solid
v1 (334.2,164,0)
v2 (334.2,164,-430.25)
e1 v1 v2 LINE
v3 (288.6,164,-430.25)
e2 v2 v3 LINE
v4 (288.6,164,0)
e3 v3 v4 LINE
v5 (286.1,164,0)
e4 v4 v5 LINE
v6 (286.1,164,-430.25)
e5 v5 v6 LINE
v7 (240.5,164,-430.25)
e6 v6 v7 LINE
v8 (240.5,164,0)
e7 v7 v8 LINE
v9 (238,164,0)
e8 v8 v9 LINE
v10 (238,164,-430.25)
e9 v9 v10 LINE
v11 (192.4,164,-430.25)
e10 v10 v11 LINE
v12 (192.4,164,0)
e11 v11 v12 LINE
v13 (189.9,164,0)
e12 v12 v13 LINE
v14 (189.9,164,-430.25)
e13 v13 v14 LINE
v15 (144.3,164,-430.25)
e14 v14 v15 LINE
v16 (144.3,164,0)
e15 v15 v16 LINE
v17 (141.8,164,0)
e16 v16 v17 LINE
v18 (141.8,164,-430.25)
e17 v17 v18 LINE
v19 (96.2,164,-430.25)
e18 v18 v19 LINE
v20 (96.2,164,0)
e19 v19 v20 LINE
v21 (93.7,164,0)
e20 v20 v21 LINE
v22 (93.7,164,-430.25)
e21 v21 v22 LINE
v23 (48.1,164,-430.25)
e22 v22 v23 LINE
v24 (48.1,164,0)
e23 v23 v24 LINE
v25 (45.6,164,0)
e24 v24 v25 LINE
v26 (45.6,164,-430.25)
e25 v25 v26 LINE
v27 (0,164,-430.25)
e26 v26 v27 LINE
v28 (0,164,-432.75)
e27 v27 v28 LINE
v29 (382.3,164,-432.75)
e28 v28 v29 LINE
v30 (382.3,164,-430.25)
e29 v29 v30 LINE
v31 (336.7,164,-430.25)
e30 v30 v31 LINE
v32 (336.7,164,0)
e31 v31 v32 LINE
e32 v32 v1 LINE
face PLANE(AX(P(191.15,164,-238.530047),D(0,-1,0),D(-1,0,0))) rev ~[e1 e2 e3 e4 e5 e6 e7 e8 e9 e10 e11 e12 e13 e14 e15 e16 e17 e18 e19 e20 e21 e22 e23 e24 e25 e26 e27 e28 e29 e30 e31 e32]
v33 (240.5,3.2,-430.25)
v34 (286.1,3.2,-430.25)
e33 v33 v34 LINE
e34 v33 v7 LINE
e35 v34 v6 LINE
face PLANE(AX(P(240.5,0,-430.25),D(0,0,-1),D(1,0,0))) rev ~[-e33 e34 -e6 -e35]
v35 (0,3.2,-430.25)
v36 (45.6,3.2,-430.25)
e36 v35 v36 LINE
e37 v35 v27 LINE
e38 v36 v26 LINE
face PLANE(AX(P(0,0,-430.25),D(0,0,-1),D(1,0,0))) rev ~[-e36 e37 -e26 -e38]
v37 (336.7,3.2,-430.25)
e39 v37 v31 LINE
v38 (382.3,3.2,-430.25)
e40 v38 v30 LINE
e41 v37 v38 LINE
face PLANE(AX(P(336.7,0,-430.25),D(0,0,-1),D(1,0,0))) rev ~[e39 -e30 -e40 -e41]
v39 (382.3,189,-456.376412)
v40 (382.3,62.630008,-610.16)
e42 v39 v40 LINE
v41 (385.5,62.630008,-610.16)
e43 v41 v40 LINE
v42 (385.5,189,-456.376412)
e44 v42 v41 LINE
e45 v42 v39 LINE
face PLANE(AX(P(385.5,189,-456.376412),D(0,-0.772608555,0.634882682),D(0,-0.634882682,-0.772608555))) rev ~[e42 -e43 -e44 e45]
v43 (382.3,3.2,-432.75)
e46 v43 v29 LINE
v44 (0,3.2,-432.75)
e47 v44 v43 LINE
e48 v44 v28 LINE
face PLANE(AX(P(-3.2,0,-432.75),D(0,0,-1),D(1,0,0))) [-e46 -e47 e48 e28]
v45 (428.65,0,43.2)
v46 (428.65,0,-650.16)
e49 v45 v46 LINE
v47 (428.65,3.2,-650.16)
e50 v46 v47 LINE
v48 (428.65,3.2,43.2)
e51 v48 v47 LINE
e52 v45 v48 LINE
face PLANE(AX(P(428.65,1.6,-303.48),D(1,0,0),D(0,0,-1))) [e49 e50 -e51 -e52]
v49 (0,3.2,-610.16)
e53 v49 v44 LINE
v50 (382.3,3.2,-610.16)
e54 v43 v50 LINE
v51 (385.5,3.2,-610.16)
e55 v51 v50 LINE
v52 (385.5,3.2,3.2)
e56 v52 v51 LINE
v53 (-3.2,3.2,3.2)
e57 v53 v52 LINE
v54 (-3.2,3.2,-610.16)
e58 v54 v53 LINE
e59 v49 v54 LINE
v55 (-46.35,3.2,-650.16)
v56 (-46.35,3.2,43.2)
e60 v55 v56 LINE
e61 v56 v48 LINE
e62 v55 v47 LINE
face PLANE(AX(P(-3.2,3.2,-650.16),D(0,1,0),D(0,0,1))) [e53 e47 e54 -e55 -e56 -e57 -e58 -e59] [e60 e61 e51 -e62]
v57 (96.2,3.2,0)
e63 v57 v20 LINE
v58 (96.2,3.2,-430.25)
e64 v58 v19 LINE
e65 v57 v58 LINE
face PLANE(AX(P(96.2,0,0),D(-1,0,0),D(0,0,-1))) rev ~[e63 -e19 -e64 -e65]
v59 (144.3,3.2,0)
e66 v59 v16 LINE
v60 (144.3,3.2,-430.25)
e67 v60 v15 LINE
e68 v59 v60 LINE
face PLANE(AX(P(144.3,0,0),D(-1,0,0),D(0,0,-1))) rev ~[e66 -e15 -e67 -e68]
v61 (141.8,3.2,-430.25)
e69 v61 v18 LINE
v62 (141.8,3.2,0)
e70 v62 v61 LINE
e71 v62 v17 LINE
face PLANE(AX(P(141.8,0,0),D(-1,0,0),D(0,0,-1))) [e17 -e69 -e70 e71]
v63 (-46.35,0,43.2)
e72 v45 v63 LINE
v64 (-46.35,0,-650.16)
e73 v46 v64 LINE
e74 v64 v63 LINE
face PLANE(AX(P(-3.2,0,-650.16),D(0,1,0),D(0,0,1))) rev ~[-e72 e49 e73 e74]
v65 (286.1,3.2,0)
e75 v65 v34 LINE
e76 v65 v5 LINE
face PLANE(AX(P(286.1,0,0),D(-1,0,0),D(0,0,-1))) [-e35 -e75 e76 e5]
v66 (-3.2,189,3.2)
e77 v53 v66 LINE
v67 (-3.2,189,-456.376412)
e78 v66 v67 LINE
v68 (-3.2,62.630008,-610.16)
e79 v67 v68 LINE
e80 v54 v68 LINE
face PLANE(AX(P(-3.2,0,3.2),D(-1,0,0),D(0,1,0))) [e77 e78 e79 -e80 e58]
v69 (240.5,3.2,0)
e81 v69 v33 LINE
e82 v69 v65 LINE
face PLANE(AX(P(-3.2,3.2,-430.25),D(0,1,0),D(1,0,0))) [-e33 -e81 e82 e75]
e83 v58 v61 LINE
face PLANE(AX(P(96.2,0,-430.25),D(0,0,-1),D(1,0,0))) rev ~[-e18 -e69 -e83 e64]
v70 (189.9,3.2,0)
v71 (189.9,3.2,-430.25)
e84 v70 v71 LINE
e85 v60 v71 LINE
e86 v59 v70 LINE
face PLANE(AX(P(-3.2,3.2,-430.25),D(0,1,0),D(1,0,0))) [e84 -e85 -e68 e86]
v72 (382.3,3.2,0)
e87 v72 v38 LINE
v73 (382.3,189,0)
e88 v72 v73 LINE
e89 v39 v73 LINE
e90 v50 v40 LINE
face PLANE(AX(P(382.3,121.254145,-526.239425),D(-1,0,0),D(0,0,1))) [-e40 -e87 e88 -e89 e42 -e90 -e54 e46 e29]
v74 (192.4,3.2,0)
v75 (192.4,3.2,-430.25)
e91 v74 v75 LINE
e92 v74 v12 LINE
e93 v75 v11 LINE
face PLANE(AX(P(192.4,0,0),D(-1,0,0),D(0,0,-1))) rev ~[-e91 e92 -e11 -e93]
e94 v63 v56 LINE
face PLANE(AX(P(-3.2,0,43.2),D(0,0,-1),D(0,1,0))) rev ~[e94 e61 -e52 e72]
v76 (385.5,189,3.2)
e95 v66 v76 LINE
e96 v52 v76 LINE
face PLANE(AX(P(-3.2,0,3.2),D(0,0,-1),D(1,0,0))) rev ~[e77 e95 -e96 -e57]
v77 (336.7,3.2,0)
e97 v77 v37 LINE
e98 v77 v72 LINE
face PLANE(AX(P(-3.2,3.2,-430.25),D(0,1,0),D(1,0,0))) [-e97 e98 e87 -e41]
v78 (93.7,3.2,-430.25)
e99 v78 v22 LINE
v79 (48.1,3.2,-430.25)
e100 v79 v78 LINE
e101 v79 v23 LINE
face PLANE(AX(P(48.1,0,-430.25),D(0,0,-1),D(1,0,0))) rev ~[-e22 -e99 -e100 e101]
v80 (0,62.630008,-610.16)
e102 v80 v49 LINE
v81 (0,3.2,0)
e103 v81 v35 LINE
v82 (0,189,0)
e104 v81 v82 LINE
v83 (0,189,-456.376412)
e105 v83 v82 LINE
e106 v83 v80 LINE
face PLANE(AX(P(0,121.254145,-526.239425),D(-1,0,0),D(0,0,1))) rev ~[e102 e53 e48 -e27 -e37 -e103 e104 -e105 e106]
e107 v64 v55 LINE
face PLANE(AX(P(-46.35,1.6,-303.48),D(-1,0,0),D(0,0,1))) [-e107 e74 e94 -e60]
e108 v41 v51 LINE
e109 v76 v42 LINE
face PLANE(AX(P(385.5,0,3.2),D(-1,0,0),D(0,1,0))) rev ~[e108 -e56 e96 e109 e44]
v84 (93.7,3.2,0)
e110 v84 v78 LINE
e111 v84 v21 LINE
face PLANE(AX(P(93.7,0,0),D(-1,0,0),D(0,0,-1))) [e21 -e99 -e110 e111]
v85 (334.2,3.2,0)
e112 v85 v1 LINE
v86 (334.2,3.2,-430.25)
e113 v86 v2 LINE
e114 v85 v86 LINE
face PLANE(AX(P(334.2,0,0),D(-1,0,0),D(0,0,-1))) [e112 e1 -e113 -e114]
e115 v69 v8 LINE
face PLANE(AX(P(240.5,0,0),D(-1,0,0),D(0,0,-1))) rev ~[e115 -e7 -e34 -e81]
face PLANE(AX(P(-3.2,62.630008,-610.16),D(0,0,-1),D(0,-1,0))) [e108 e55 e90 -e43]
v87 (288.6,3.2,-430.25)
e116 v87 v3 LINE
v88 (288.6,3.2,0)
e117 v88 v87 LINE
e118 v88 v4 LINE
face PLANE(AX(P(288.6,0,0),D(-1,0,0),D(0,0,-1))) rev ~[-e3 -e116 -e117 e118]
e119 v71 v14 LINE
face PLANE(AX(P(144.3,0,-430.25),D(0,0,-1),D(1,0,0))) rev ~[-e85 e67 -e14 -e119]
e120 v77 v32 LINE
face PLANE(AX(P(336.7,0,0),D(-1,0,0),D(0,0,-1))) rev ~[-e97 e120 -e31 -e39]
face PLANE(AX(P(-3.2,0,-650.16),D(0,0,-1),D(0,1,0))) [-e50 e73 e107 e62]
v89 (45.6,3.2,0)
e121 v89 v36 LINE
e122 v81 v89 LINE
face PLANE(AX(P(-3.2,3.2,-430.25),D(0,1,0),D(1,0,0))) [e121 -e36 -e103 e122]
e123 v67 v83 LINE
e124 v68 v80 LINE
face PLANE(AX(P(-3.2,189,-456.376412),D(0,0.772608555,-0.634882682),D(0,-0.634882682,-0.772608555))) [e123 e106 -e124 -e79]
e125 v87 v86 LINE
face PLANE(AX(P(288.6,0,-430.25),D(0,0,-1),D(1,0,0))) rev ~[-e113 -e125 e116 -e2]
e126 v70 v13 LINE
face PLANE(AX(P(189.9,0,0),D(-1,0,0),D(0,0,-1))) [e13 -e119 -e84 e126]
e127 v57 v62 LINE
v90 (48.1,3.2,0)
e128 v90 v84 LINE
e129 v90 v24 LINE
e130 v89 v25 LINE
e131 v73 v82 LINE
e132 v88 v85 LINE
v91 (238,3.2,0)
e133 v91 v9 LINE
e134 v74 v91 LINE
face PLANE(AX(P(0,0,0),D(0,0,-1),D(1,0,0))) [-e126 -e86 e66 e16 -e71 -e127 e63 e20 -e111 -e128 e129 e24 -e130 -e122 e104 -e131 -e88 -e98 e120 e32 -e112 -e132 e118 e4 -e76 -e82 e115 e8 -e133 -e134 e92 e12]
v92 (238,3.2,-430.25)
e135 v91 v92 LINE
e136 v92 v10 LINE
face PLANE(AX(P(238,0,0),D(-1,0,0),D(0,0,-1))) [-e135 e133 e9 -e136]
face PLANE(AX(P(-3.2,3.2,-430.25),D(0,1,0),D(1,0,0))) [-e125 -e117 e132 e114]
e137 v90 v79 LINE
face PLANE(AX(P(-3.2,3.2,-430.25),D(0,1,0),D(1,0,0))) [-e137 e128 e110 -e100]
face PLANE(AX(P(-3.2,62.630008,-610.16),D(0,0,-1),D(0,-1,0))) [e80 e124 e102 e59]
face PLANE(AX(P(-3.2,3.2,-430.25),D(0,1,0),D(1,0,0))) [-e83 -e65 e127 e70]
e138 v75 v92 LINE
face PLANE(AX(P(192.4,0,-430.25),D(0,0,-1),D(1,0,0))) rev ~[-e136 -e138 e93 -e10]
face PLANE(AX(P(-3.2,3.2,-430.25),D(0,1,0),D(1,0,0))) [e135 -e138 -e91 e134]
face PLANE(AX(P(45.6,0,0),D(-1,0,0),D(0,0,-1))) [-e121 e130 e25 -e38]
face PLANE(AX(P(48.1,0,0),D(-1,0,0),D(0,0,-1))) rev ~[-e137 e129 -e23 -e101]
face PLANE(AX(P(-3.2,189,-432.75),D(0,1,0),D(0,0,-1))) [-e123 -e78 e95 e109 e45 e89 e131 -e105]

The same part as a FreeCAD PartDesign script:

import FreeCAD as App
import Part
import Sketcher
from FreeCAD import Vector

doc = App.newDocument("Part")
params = doc.addObject("Spreadsheet::Sheet", "Params")
for row, (alias, value) in enumerate([
    ("sketch1_width", "388.7 mm"),
    ("sketch1_width2", "45.6 mm"),
    ("sketch1_height", "435.95 mm"),
    ("sketch1_height2", "430.25 mm"),
    ("pad1_length", "189 mm"),
    ("sketch2_width", "388.7 mm"),
    ("sketch2_height", "3.2 mm"),
    ("pad2_length", "430.25 mm"),
    ("sketch3_width", "45.6 mm"),
    ("sketch3_width2", "2.5 mm"),
    ("sketch3_height", "430.25 mm"),
    ("pocket1_length", "25 mm"),
    ("sketch4_width", "189 mm"),
    ("sketch4_height", "230 mm"),
    ("pad3_length", "3.2 mm"),
    ("sketch5_width", "189 mm"),
    ("sketch5_height", "230 mm"),
    ("pad4_length", "3.2 mm"),
    ("sketch6_height", "230 mm"),
    ("sketch6_width", "3.2 mm"),
    ("sketch7_height", "52.59 mm"),
    ("pocket2_length", "388.7 mm"),
    ("pad6_length", "3.2 mm"),
    ("pad7_length", "3.2 mm"),
    ("sketch10_width", "388.7 mm"),
    ("sketch10_height", "3.2 mm"),
    ("pad8_length", "40 mm"),
    ("sketch11_width", "388.7 mm"),
    ("sketch11_height", "3.2 mm"),
    ("pad9_length", "40 mm"),
    ("sketch12_width", "3.2 mm"),
    ("sketch12_height", "693.36 mm"),
    ("pad10_length", "43.15 mm"),
    ("sketch13_width", "3.2 mm"),
    ("sketch13_height", "693.36 mm"),
    ("pad11_length", "43.15 mm"),
], start=1):
    params.set(f"A{row}", alias)
    params.set(f"B{row}", "=" + value)
    params.setAlias(f"B{row}", alias)

body = doc.addObject("PartDesign::Body", "Body")

# Sketch on XZ plane
sketch1 = body.newObject("Sketcher::SketchObject", "Sketch")
sketch1.AttachmentSupport = (doc.getObject("XZ_Plane"), [""])
sketch1.MapMode = "FlatFace"
sketch1.addGeometry(Part.LineSegment(Vector(-3.2, -432.75, 0), Vector(-3.2, 3.2, 0)), False)
sketch1.addGeometry(Part.LineSegment(Vector(-3.2, 3.2, 0), Vector(385.5, 3.2, 0)), False)
sketch1.addGeometry(Part.LineSegment(Vector(385.5, 3.2, 0), Vector(385.5, -432.75, 0)), False)
sketch1.addGeometry(Part.LineSegment(Vector(385.5, -432.75, 0), Vector(-3.2, -432.75, 0)), False)
sketch1.addGeometry(Part.LineSegment(Vector(45.6, 0, 0), Vector(0, 0, 0)), False)
sketch1.addGeometry(Part.LineSegment(Vector(0, 0, 0), Vector(0, -430.25, 0)), False)
sketch1.addGeometry(Part.LineSegment(Vector(0, -430.25, 0), Vector(45.6, -430.25, 0)), False)
sketch1.addGeometry(Part.LineSegment(Vector(45.6, -430.25, 0), Vector(45.6, 0, 0)), False)
sketch1.addGeometry(Part.LineSegment(Vector(93.7, 0, 0), Vector(48.1, 0, 0)), False)
sketch1.addGeometry(Part.LineSegment(Vector(48.1, 0, 0), Vector(48.1, -430.25, 0)), False)
sketch1.addGeometry(Part.LineSegment(Vector(48.1, -430.25, 0), Vector(93.7, -430.25, 0)), False)
sketch1.addGeometry(Part.LineSegment(Vector(93.7, -430.25, 0), Vector(93.7, 0, 0)), False)
sketch1.addGeometry(Part.LineSegment(Vector(141.8, 0, 0), Vector(96.2, 0, 0)), False)
sketch1.addGeometry(Part.LineSegment(Vector(96.2, 0, 0), Vector(96.2, -430.25, 0)), False)
sketch1.addGeometry(Part.LineSegment(Vector(96.2, -430.25, 0), Vector(141.8, -430.25, 0)), False)
sketch1.addGeometry(Part.LineSegment(Vector(141.8, -430.25, 0), Vector(141.8, 0, 0)), False)
sketch1.addGeometry(Part.LineSegment(Vector(189.9, 0, 0), Vector(144.3, 0, 0)), False)
sketch1.addGeometry(Part.LineSegment(Vector(144.3, 0, 0), Vector(144.3, -430.25, 0)), False)
sketch1.addGeometry(Part.LineSegment(Vector(144.3, -430.25, 0), Vector(189.9, -430.25, 0)), False)
sketch1.addGeometry(Part.LineSegment(Vector(189.9, -430.25, 0), Vector(189.9, 0, 0)), False)
sketch1.addGeometry(Part.LineSegment(Vector(238, 0, 0), Vector(192.4, 0, 0)), False)
sketch1.addGeometry(Part.LineSegment(Vector(192.4, 0, 0), Vector(192.4, -430.25, 0)), False)
sketch1.addGeometry(Part.LineSegment(Vector(192.4, -430.25, 0), Vector(238, -430.25, 0)), False)
sketch1.addGeometry(Part.LineSegment(Vector(238, -430.25, 0), Vector(238, 0, 0)), False)
sketch1.addGeometry(Part.LineSegment(Vector(286.1, 0, 0), Vector(240.5, 0, 0)), False)
sketch1.addGeometry(Part.LineSegment(Vector(240.5, 0, 0), Vector(240.5, -430.25, 0)), False)
sketch1.addGeometry(Part.LineSegment(Vector(240.5, -430.25, 0), Vector(286.1, -430.25, 0)), False)
sketch1.addGeometry(Part.LineSegment(Vector(286.1, -430.25, 0), Vector(286.1, 0, 0)), False)
sketch1.addGeometry(Part.LineSegment(Vector(334.2, 0, 0), Vector(288.6, 0, 0)), False)
sketch1.addGeometry(Part.LineSegment(Vector(288.6, 0, 0), Vector(288.6, -430.25, 0)), False)
sketch1.addGeometry(Part.LineSegment(Vector(288.6, -430.25, 0), Vector(334.2, -430.25, 0)), False)
sketch1.addGeometry(Part.LineSegment(Vector(334.2, -430.25, 0), Vector(334.2, 0, 0)), False)
sketch1.addGeometry(Part.LineSegment(Vector(382.3, 0, 0), Vector(336.7, 0, 0)), False)
sketch1.addGeometry(Part.LineSegment(Vector(336.7, 0, 0), Vector(336.7, -430.25, 0)), False)
sketch1.addGeometry(Part.LineSegment(Vector(336.7, -430.25, 0), Vector(382.3, -430.25, 0)), False)
sketch1.addGeometry(Part.LineSegment(Vector(382.3, -430.25, 0), Vector(382.3, 0, 0)), False)
sketch1.addConstraint(Sketcher.Constraint("Coincident", 0, 2, 1, 1))
sketch1.addConstraint(Sketcher.Constraint("Coincident", 1, 2, 2, 1))
sketch1.addConstraint(Sketcher.Constraint("Coincident", 2, 2, 3, 1))
sketch1.addConstraint(Sketcher.Constraint("Coincident", 3, 2, 0, 1))
sketch1.addConstraint(Sketcher.Constraint("Coincident", 4, 2, 5, 1))
sketch1.addConstraint(Sketcher.Constraint("Coincident", 5, 2, 6, 1))
sketch1.addConstraint(Sketcher.Constraint("Coincident", 6, 2, 7, 1))
sketch1.addConstraint(Sketcher.Constraint("Coincident", 7, 2, 4, 1))
sketch1.addConstraint(Sketcher.Constraint("Coincident", 8, 2, 9, 1))
sketch1.addConstraint(Sketcher.Constraint("Coincident", 9, 2, 10, 1))
sketch1.addConstraint(Sketcher.Constraint("Coincident", 10, 2, 11, 1))
sketch1.addConstraint(Sketcher.Constraint("Coincident", 11, 2, 8, 1))
sketch1.addConstraint(Sketcher.Constraint("Coincident", 12, 2, 13, 1))
sketch1.addConstraint(Sketcher.Constraint("Coincident", 13, 2, 14, 1))
sketch1.addConstraint(Sketcher.Constraint("Coincident", 14, 2, 15, 1))
sketch1.addConstraint(Sketcher.Constraint("Coincident", 15, 2, 12, 1))
sketch1.addConstraint(Sketcher.Constraint("Coincident", 16, 2, 17, 1))
sketch1.addConstraint(Sketcher.Constraint("Coincident", 17, 2, 18, 1))
sketch1.addConstraint(Sketcher.Constraint("Coincident", 18, 2, 19, 1))
sketch1.addConstraint(Sketcher.Constraint("Coincident", 19, 2, 16, 1))
sketch1.addConstraint(Sketcher.Constraint("Coincident", 20, 2, 21, 1))
sketch1.addConstraint(Sketcher.Constraint("Coincident", 21, 2, 22, 1))
sketch1.addConstraint(Sketcher.Constraint("Coincident", 22, 2, 23, 1))
sketch1.addConstraint(Sketcher.Constraint("Coincident", 23, 2, 20, 1))
sketch1.addConstraint(Sketcher.Constraint("Coincident", 24, 2, 25, 1))
sketch1.addConstraint(Sketcher.Constraint("Coincident", 25, 2, 26, 1))
sketch1.addConstraint(Sketcher.Constraint("Coincident", 26, 2, 27, 1))
sketch1.addConstraint(Sketcher.Constraint("Coincident", 27, 2, 24, 1))
sketch1.addConstraint(Sketcher.Constraint("Coincident", 28, 2, 29, 1))
sketch1.addConstraint(Sketcher.Constraint("Coincident", 29, 2, 30, 1))
sketch1.addConstraint(Sketcher.Constraint("Coincident", 30, 2, 31, 1))
sketch1.addConstraint(Sketcher.Constraint("Coincident", 31, 2, 28, 1))
sketch1.addConstraint(Sketcher.Constraint("Coincident", 32, 2, 33, 1))
sketch1.addConstraint(Sketcher.Constraint("Coincident", 33, 2, 34, 1))
sketch1.addConstraint(Sketcher.Constraint("Coincident", 34, 2, 35, 1))
sketch1.addConstraint(Sketcher.Constraint("Coincident", 35, 2, 32, 1))
sketch1.addConstraint(Sketcher.Constraint("Vertical", 0))
sketch1.addConstraint(Sketcher.Constraint("Horizontal", 1))
sketch1.addConstraint(Sketcher.Constraint("Vertical", 2))
sketch1.addConstraint(Sketcher.Constraint("Horizontal", 3))
sketch1.addConstraint(Sketcher.Constraint("Horizontal", 4))
sketch1.addConstraint(Sketcher.Constraint("Vertical", 5))
sketch1.addConstraint(Sketcher.Constraint("Horizontal", 6))
sketch1.addConstraint(Sketcher.Constraint("Vertical", 7))
sketch1.addConstraint(Sketcher.Constraint("Horizontal", 8))
sketch1.addConstraint(Sketcher.Constraint("Vertical", 9))
sketch1.addConstraint(Sketcher.Constraint("Horizontal", 10))
sketch1.addConstraint(Sketcher.Constraint("Vertical", 11))
sketch1.addConstraint(Sketcher.Constraint("Horizontal", 12))
sketch1.addConstraint(Sketcher.Constraint("Vertical", 13))
sketch1.addConstraint(Sketcher.Constraint("Horizontal", 14))
sketch1.addConstraint(Sketcher.Constraint("Vertical", 15))
sketch1.addConstraint(Sketcher.Constraint("Horizontal", 16))
sketch1.addConstraint(Sketcher.Constraint("Vertical", 17))
sketch1.addConstraint(Sketcher.Constraint("Horizontal", 18))
sketch1.addConstraint(Sketcher.Constraint("Vertical", 19))
sketch1.addConstraint(Sketcher.Constraint("Horizontal", 20))
sketch1.addConstraint(Sketcher.Constraint("Vertical", 21))
sketch1.addConstraint(Sketcher.Constraint("Horizontal", 22))
sketch1.addConstraint(Sketcher.Constraint("Vertical", 23))
sketch1.addConstraint(Sketcher.Constraint("Horizontal", 24))
sketch1.addConstraint(Sketcher.Constraint("Vertical", 25))
sketch1.addConstraint(Sketcher.Constraint("Horizontal", 26))
sketch1.addConstraint(Sketcher.Constraint("Vertical", 27))
sketch1.addConstraint(Sketcher.Constraint("Horizontal", 28))
sketch1.addConstraint(Sketcher.Constraint("Vertical", 29))
sketch1.addConstraint(Sketcher.Constraint("Horizontal", 30))
sketch1.addConstraint(Sketcher.Constraint("Vertical", 31))
sketch1.addConstraint(Sketcher.Constraint("Horizontal", 32))
sketch1.addConstraint(Sketcher.Constraint("Vertical", 33))
sketch1.addConstraint(Sketcher.Constraint("Horizontal", 34))
sketch1.addConstraint(Sketcher.Constraint("Vertical", 35))
sketch1.addConstraint(Sketcher.Constraint("Coincident", 4, 2, -1, 1))
sketch1.addConstraint(Sketcher.Constraint("PointOnObject", 8, 2, -1))
sketch1.addConstraint(Sketcher.Constraint("PointOnObject", 12, 2, -1))
sketch1.addConstraint(Sketcher.Constraint("PointOnObject", 16, 2, -1))
sketch1.addConstraint(Sketcher.Constraint("PointOnObject", 20, 2, -1))
sketch1.addConstraint(Sketcher.Constraint("PointOnObject", 24, 2, -1))
sketch1.addConstraint(Sketcher.Constraint("PointOnObject", 28, 2, -1))
sketch1.addConstraint(Sketcher.Constraint("PointOnObject", 32, 2, -1))
sketch1.addConstraint(Sketcher.Constraint("Horizontal", 6, 2, 9, 2))
sketch1.addConstraint(Sketcher.Constraint("Horizontal", 10, 2, 13, 2))
sketch1.addConstraint(Sketcher.Constraint("Horizontal", 14, 2, 17, 2))
sketch1.addConstraint(Sketcher.Constraint("Horizontal", 18, 2, 21, 2))
sketch1.addConstraint(Sketcher.Constraint("Horizontal", 22, 2, 25, 2))
sketch1.addConstraint(Sketcher.Constraint("Horizontal", 26, 2, 29, 2))
sketch1.addConstraint(Sketcher.Constraint("Horizontal", 30, 2, 33, 2))
sketch1.addConstraint(Sketcher.Constraint("Equal", 6, 8))
sketch1.addConstraint(Sketcher.Constraint("Equal", 10, 12))
sketch1.addConstraint(Sketcher.Constraint("Equal", 14, 16))
sketch1.addConstraint(Sketcher.Constraint("Equal", 18, 20))
sketch1.addConstraint(Sketcher.Constraint("Equal", 22, 24))
sketch1.addConstraint(Sketcher.Constraint("Equal", 26, 28))
sketch1.addConstraint(Sketcher.Constraint("Equal", 30, 32))
sketch1.addConstraint(Sketcher.Constraint("DistanceX", 1, 1, 1, 2, 388.7))
sketch1.addConstraint(Sketcher.Constraint("DistanceX", 4, 2, 4, 1, 45.6))
sketch1.addConstraint(Sketcher.Constraint("DistanceX", -1, 1, 22, 2, 238.0))
sketch1.addConstraint(Sketcher.Constraint("DistanceY", 0, 1, 0, 2, 435.95))
sketch1.addConstraint(Sketcher.Constraint("DistanceY", 5, 2, 5, 1, 430.25))
sketch1.addConstraint(Sketcher.Constraint("DistanceX", 0, 2, -1, 1, 3.2))
sketch1.addConstraint(Sketcher.Constraint("DistanceY", -1, 1, 0, 2, 3.2))
sketch1.addConstraint(Sketcher.Constraint("DistanceX", -1, 1, 8, 2, 48.1))
sketch1.addConstraint(Sketcher.Constraint("DistanceX", -1, 1, 12, 2, 96.2))
sketch1.addConstraint(Sketcher.Constraint("DistanceX", -1, 1, 16, 2, 144.3))
sketch1.addConstraint(Sketcher.Constraint("DistanceX", -1, 1, 24, 2, 240.5))
sketch1.addConstraint(Sketcher.Constraint("DistanceX", -1, 1, 28, 2, 288.6))
sketch1.addConstraint(Sketcher.Constraint("DistanceX", -1, 1, 32, 2, 336.7))
sketch1.setExpression("Constraints[94]", "Params.sketch1_width")
sketch1.setExpression("Constraints[95]", "Params.sketch1_width2")
sketch1.setExpression("Constraints[97]", "Params.sketch1_height")
sketch1.setExpression("Constraints[98]", "Params.sketch1_height2")
pad1 = body.newObject("PartDesign::Pad", "Pad")
pad1.Profile = sketch1
pad1.setExpression("Length", "Params.pad1_length")
pad1.Reversed = True

# Sketch on XY plane
sketch2 = body.newObject("Sketcher::SketchObject", "Sketch001")
sketch2.AttachmentSupport = (doc.getObject("XY_Plane"), [""])
sketch2.MapMode = "FlatFace"
sketch2.AttachmentOffset = App.Placement(Vector(0, 0, -430.25), App.Rotation())
sketch2.addGeometry(Part.LineSegment(Vector(-3.2, 3.2, 0), Vector(-3.2, 0, 0)), False)
sketch2.addGeometry(Part.LineSegment(Vector(-3.2, 0, 0), Vector(385.5, 0, 0)), False)
sketch2.addGeometry(Part.LineSegment(Vector(385.5, 0, 0), Vector(385.5, 3.2, 0)), False)
sketch2.addGeometry(Part.LineSegment(Vector(385.5, 3.2, 0), Vector(-3.2, 3.2, 0)), False)
sketch2.addConstraint(Sketcher.Constraint("Coincident", 0, 2, 1, 1))
sketch2.addConstraint(Sketcher.Constraint("Coincident", 1, 2, 2, 1))
sketch2.addConstraint(Sketcher.Constraint("Coincident", 2, 2, 3, 1))
sketch2.addConstraint(Sketcher.Constraint("Coincident", 3, 2, 0, 1))
sketch2.addConstraint(Sketcher.Constraint("Vertical", 0))
sketch2.addConstraint(Sketcher.Constraint("Horizontal", 1))
sketch2.addConstraint(Sketcher.Constraint("Vertical", 2))
sketch2.addConstraint(Sketcher.Constraint("Horizontal", 3))
sketch2.addConstraint(Sketcher.Constraint("PointOnObject", 0, 2, -1))
sketch2.addConstraint(Sketcher.Constraint("DistanceX", 1, 1, 1, 2, 388.7))
sketch2.addConstraint(Sketcher.Constraint("DistanceY", 0, 2, 0, 1, 3.2))
sketch2.addConstraint(Sketcher.Constraint("DistanceX", 0, 2, -1, 1, 3.2))
sketch2.setExpression("Constraints[9]", "Params.sketch2_width")
sketch2.setExpression("Constraints[10]", "Params.sketch2_height")
pad2 = body.newObject("PartDesign::Pad", "Pad001")
pad2.Profile = sketch2
pad2.setExpression("Length", "Params.pad2_length")

# Sketch on XZ plane
sketch3 = body.newObject("Sketcher::SketchObject", "Sketch002")
sketch3.AttachmentSupport = (doc.getObject("XZ_Plane"), [""])
sketch3.MapMode = "FlatFace"
sketch3.AttachmentOffset = App.Placement(Vector(0, 0, -189), App.Rotation())
sketch3.addGeometry(Part.LineSegment(Vector(0, -432.75, 0), Vector(0, -430.25, 0)), False)
sketch3.addGeometry(Part.LineSegment(Vector(0, -430.25, 0), Vector(45.6, -430.25, 0)), False)
sketch3.addGeometry(Part.LineSegment(Vector(45.6, -430.25, 0), Vector(45.6, 0, 0)), False)
sketch3.addGeometry(Part.LineSegment(Vector(45.6, 0, 0), Vector(48.1, 0, 0)), False)
sketch3.addGeometry(Part.LineSegment(Vector(48.1, 0, 0), Vector(48.1, -430.25, 0)), False)
sketch3.addGeometry(Part.LineSegment(Vector(48.1, -430.25, 0), Vector(93.7, -430.25, 0)), False)
sketch3.addGeometry(Part.LineSegment(Vector(93.7, -430.25, 0), Vector(93.7, 0, 0)), False)
sketch3.addGeometry(Part.LineSegment(Vector(93.7, 0, 0), Vector(96.2, 0, 0)), False)
sketch3.addGeometry(Part.LineSegment(Vector(96.2, 0, 0), Vector(96.2, -430.25, 0)), False)
sketch3.addGeometry(Part.LineSegment(Vector(96.2, -430.25, 0), Vector(141.8, -430.25, 0)), False)
sketch3.addGeometry(Part.LineSegment(Vector(141.8, -430.25, 0), Vector(141.8, 0, 0)), False)
sketch3.addGeometry(Part.LineSegment(Vector(141.8, 0, 0), Vector(144.3, 0, 0)), False)
sketch3.addGeometry(Part.LineSegment(Vector(144.3, 0, 0), Vector(144.3, -430.25, 0)), False)
sketch3.addGeometry(Part.LineSegment(Vector(144.3, -430.25, 0), Vector(189.9, -430.25, 0)), False)
sketch3.addGeometry(Part.LineSegment(Vector(189.9, -430.25, 0), Vector(189.9, 0, 0)), False)
sketch3.addGeometry(Part.LineSegment(Vector(189.9, 0, 0), Vector(192.4, 0, 0)), False)
sketch3.addGeometry(Part.LineSegment(Vector(192.4, 0, 0), Vector(192.4, -430.25, 0)), False)
sketch3.addGeometry(Part.LineSegment(Vector(192.4, -430.25, 0), Vector(238, -430.25, 0)), False)
sketch3.addGeometry(Part.LineSegment(Vector(238, -430.25, 0), Vector(238, 0, 0)), False)
sketch3.addGeometry(Part.LineSegment(Vector(238, 0, 0), Vector(240.5, 0, 0)), False)
sketch3.addGeometry(Part.LineSegment(Vector(240.5, 0, 0), Vector(240.5, -430.25, 0)), False)
sketch3.addGeometry(Part.LineSegment(Vector(240.5, -430.25, 0), Vector(286.1, -430.25, 0)), False)
sketch3.addGeometry(Part.LineSegment(Vector(286.1, -430.25, 0), Vector(286.1, 0, 0)), False)
sketch3.addGeometry(Part.LineSegment(Vector(286.1, 0, 0), Vector(288.6, 0, 0)), False)
sketch3.addGeometry(Part.LineSegment(Vector(288.6, 0, 0), Vector(288.6, -430.25, 0)), False)
sketch3.addGeometry(Part.LineSegment(Vector(288.6, -430.25, 0), Vector(334.2, -430.25, 0)), False)
sketch3.addGeometry(Part.LineSegment(Vector(334.2, -430.25, 0), Vector(334.2, 0, 0)), False)
sketch3.addGeometry(Part.LineSegment(Vector(334.2, 0, 0), Vector(336.7, 0, 0)), False)
sketch3.addGeometry(Part.LineSegment(Vector(336.7, 0, 0), Vector(336.7, -430.25, 0)), False)
sketch3.addGeometry(Part.LineSegment(Vector(336.7, -430.25, 0), Vector(382.3, -430.25, 0)), False)
sketch3.addGeometry(Part.LineSegment(Vector(382.3, -430.25, 0), Vector(382.3, -432.75, 0)), False)
sketch3.addGeometry(Part.LineSegment(Vector(382.3, -432.75, 0), Vector(0, -432.75, 0)), False)
sketch3.addConstraint(Sketcher.Constraint("Coincident", 0, 2, 1, 1))
sketch3.addConstraint(Sketcher.Constraint("Coincident", 1, 2, 2, 1))
sketch3.addConstraint(Sketcher.Constraint("Coincident", 2, 2, 3, 1))
sketch3.addConstraint(Sketcher.Constraint("Coincident", 3, 2, 4, 1))
sketch3.addConstraint(Sketcher.Constraint("Coincident", 4, 2, 5, 1))
sketch3.addConstraint(Sketcher.Constraint("Coincident", 5, 2, 6, 1))
sketch3.addConstraint(Sketcher.Constraint("Coincident", 6, 2, 7, 1))
sketch3.addConstraint(Sketcher.Constraint("Coincident", 7, 2, 8, 1))
sketch3.addConstraint(Sketcher.Constraint("Coincident", 8, 2, 9, 1))
sketch3.addConstraint(Sketcher.Constraint("Coincident", 9, 2, 10, 1))
sketch3.addConstraint(Sketcher.Constraint("Coincident", 10, 2, 11, 1))
sketch3.addConstraint(Sketcher.Constraint("Coincident", 11, 2, 12, 1))
sketch3.addConstraint(Sketcher.Constraint("Coincident", 12, 2, 13, 1))
sketch3.addConstraint(Sketcher.Constraint("Coincident", 13, 2, 14, 1))
sketch3.addConstraint(Sketcher.Constraint("Coincident", 14, 2, 15, 1))
sketch3.addConstraint(Sketcher.Constraint("Coincident", 15, 2, 16, 1))
sketch3.addConstraint(Sketcher.Constraint("Coincident", 16, 2, 17, 1))
sketch3.addConstraint(Sketcher.Constraint("Coincident", 17, 2, 18, 1))
sketch3.addConstraint(Sketcher.Constraint("Coincident", 18, 2, 19, 1))
sketch3.addConstraint(Sketcher.Constraint("Coincident", 19, 2, 20, 1))
sketch3.addConstraint(Sketcher.Constraint("Coincident", 20, 2, 21, 1))
sketch3.addConstraint(Sketcher.Constraint("Coincident", 21, 2, 22, 1))
sketch3.addConstraint(Sketcher.Constraint("Coincident", 22, 2, 23, 1))
sketch3.addConstraint(Sketcher.Constraint("Coincident", 23, 2, 24, 1))
sketch3.addConstraint(Sketcher.Constraint("Coincident", 24, 2, 25, 1))
sketch3.addConstraint(Sketcher.Constraint("Coincident", 25, 2, 26, 1))
sketch3.addConstraint(Sketcher.Constraint("Coincident", 26, 2, 27, 1))
sketch3.addConstraint(Sketcher.Constraint("Coincident", 27, 2, 28, 1))
sketch3.addConstraint(Sketcher.Constraint("Coincident", 28, 2, 29, 1))
sketch3.addConstraint(Sketcher.Constraint("Coincident", 29, 2, 30, 1))
sketch3.addConstraint(Sketcher.Constraint("Coincident", 30, 2, 31, 1))
sketch3.addConstraint(Sketcher.Constraint("Coincident", 31, 2, 0, 1))
sketch3.addConstraint(Sketcher.Constraint("Vertical", 0))
sketch3.addConstraint(Sketcher.Constraint("Horizontal", 1))
sketch3.addConstraint(Sketcher.Constraint("Vertical", 2))
sketch3.addConstraint(Sketcher.Constraint("Horizontal", 3))
sketch3.addConstraint(Sketcher.Constraint("Vertical", 4))
sketch3.addConstraint(Sketcher.Constraint("Horizontal", 5))
sketch3.addConstraint(Sketcher.Constraint("Vertical", 6))
sketch3.addConstraint(Sketcher.Constraint("Horizontal", 7))
sketch3.addConstraint(Sketcher.Constraint("Vertical", 8))
sketch3.addConstraint(Sketcher.Constraint("Horizontal", 9))
sketch3.addConstraint(Sketcher.Constraint("Vertical", 10))
sketch3.addConstraint(Sketcher.Constraint("Horizontal", 11))
sketch3.addConstraint(Sketcher.Constraint("Vertical", 12))
sketch3.addConstraint(Sketcher.Constraint("Horizontal", 13))
sketch3.addConstraint(Sketcher.Constraint("Vertical", 14))
sketch3.addConstraint(Sketcher.Constraint("Horizontal", 15))
sketch3.addConstraint(Sketcher.Constraint("Vertical", 16))
sketch3.addConstraint(Sketcher.Constraint("Horizontal", 17))
sketch3.addConstraint(Sketcher.Constraint("Vertical", 18))
sketch3.addConstraint(Sketcher.Constraint("Horizontal", 19))
sketch3.addConstraint(Sketcher.Constraint("Vertical", 20))
sketch3.addConstraint(Sketcher.Constraint("Horizontal", 21))
sketch3.addConstraint(Sketcher.Constraint("Vertical", 22))
sketch3.addConstraint(Sketcher.Constraint("Horizontal", 23))
sketch3.addConstraint(Sketcher.Constraint("Vertical", 24))
sketch3.addConstraint(Sketcher.Constraint("Horizontal", 25))
sketch3.addConstraint(Sketcher.Constraint("Vertical", 26))
sketch3.addConstraint(Sketcher.Constraint("Horizontal", 27))
sketch3.addConstraint(Sketcher.Constraint("Vertical", 28))
sketch3.addConstraint(Sketcher.Constraint("Horizontal", 29))
sketch3.addConstraint(Sketcher.Constraint("Vertical", 30))
sketch3.addConstraint(Sketcher.Constraint("Horizontal", 31))
sketch3.addConstraint(Sketcher.Constraint("PointOnObject", 0, 2, -2))
sketch3.addConstraint(Sketcher.Constraint("PointOnObject", 2, 2, -1))
sketch3.addConstraint(Sketcher.Constraint("PointOnObject", 6, 2, -1))
sketch3.addConstraint(Sketcher.Constraint("PointOnObject", 10, 2, -1))
sketch3.addConstraint(Sketcher.Constraint("PointOnObject", 14, 2, -1))
sketch3.addConstraint(Sketcher.Constraint("PointOnObject", 18, 2, -1))
sketch3.addConstraint(Sketcher.Constraint("PointOnObject", 22, 2, -1))
sketch3.addConstraint(Sketcher.Constraint("PointOnObject", 26, 2, -1))
sketch3.addConstraint(Sketcher.Constraint("Horizontal", 1, 2, 4, 2))
sketch3.addConstraint(Sketcher.Constraint("Horizontal", 5, 2, 8, 2))
sketch3.addConstraint(Sketcher.Constraint("Horizontal", 9, 2, 12, 2))
sketch3.addConstraint(Sketcher.Constraint("Horizontal", 13, 2, 16, 2))
sketch3.addConstraint(Sketcher.Constraint("Horizontal", 17, 2, 20, 2))
sketch3.addConstraint(Sketcher.Constraint("Horizontal", 21, 2, 24, 2))
sketch3.addConstraint(Sketcher.Constraint("Horizontal", 25, 2, 28, 2))
sketch3.addConstraint(Sketcher.Constraint("Equal", 1, 5))
sketch3.addConstraint(Sketcher.Constraint("Equal", 3, 7))
sketch3.addConstraint(Sketcher.Constraint("Equal", 5, 9))
sketch3.addConstraint(Sketcher.Constraint("Equal", 7, 11))
sketch3.addConstraint(Sketcher.Constraint("Equal", 9, 13))
sketch3.addConstraint(Sketcher.Constraint("Equal", 11, 15))
sketch3.addConstraint(Sketcher.Constraint("Equal", 13, 17))
sketch3.addConstraint(Sketcher.Constraint("Equal", 15, 19))
sketch3.addConstraint(Sketcher.Constraint("Equal", 17, 21))
sketch3.addConstraint(Sketcher.Constraint("Equal", 19, 23))
sketch3.addConstraint(Sketcher.Constraint("Equal", 21, 25))
sketch3.addConstraint(Sketcher.Constraint("Equal", 23, 27))
sketch3.addConstraint(Sketcher.Constraint("Equal", 25, 29))
sketch3.addConstraint(Sketcher.Constraint("Equal", 27, 0))
sketch3.addConstraint(Sketcher.Constraint("DistanceX", 1, 1, 1, 2, 45.6))
sketch3.addConstraint(Sketcher.Constraint("DistanceX", 3, 1, 3, 2, 2.5))
sketch3.addConstraint(Sketcher.Constraint("DistanceY", 2, 1, 2, 2, 430.25))
sketch3.setExpression("Constraints[93]", "Params.sketch3_width")
sketch3.setExpression("Constraints[94]", "Params.sketch3_width2")
sketch3.setExpression("Constraints[95]", "Params.sketch3_height")
pocket1 = body.newObject("PartDesign::Pocket", "Pocket")
pocket1.Profile = sketch3
pocket1.setExpression("Length", "Params.pocket1_length")
pocket1.Reversed = True

# Sketch on YZ plane
sketch4 = body.newObject("Sketcher::SketchObject", "Sketch003")
sketch4.AttachmentSupport = (doc.getObject("YZ_Plane"), [""])
sketch4.MapMode = "FlatFace"
sketch4.AttachmentOffset = App.Placement(Vector(0, 0, 385.5), App.Rotation())
sketch4.addGeometry(Part.LineSegment(Vector(0, -662.75, 0), Vector(189, -432.75, 0)), False)
sketch4.addGeometry(Part.LineSegment(Vector(189, -432.75, 0), Vector(0, -432.75, 0)), False)
sketch4.addGeometry(Part.LineSegment(Vector(0, -432.75, 0), Vector(0, -662.75, 0)), False)
sketch4.addConstraint(Sketcher.Constraint("Coincident", 0, 2, 1, 1))
sketch4.addConstraint(Sketcher.Constraint("Coincident", 1, 2, 2, 1))
sketch4.addConstraint(Sketcher.Constraint("Coincident", 2, 2, 0, 1))
sketch4.addConstraint(Sketcher.Constraint("Horizontal", 1))
sketch4.addConstraint(Sketcher.Constraint("Vertical", 2))
sketch4.addConstraint(Sketcher.Constraint("PointOnObject", 1, 2, -2))
sketch4.addConstraint(Sketcher.Constraint("DistanceX", 1, 2, 1, 1, 189.0))
sketch4.addConstraint(Sketcher.Constraint("DistanceY", 2, 2, 2, 1, 230.0))
sketch4.addConstraint(Sketcher.Constraint("DistanceY", 0, 2, -1, 1, 432.75))
sketch4.setExpression("Constraints[6]", "Params.sketch4_width")
sketch4.setExpression("Constraints[7]", "Params.sketch4_height")
pad3 = body.newObject("PartDesign::Pad", "Pad002")
pad3.Profile = sketch4
pad3.setExpression("Length", "Params.pad3_length")
pad3.Reversed = True

# Sketch on YZ plane
sketch5 = body.newObject("Sketcher::SketchObject", "Sketch004")
sketch5.AttachmentSupport = (doc.getObject("YZ_Plane"), [""])
sketch5.MapMode = "FlatFace"
sketch5.AttachmentOffset = App.Placement(Vector(0, 0, -3.2), App.Rotation())
sketch5.addGeometry(Part.LineSegment(Vector(189, -432.75, 0), Vector(0, -662.75, 0)), False)
sketch5.addGeometry(Part.LineSegment(Vector(0, -662.75, 0), Vector(0, -432.75, 0)), False)
sketch5.addGeometry(Part.LineSegment(Vector(0, -432.75, 0), Vector(189, -432.75, 0)), False)
sketch5.addConstraint(Sketcher.Constraint("Coincident", 0, 2, 1, 1))
sketch5.addConstraint(Sketcher.Constraint("Coincident", 1, 2, 2, 1))
sketch5.addConstraint(Sketcher.Constraint("Coincident", 2, 2, 0, 1))
sketch5.addConstraint(Sketcher.Constraint("Vertical", 1))
sketch5.addConstraint(Sketcher.Constraint("Horizontal", 2))
sketch5.addConstraint(Sketcher.Constraint("PointOnObject", 0, 2, -2))
sketch5.addConstraint(Sketcher.Constraint("DistanceX", 2, 1, 2, 2, 189.0))
sketch5.addConstraint(Sketcher.Constraint("DistanceY", 1, 1, 1, 2, 230.0))
sketch5.addConstraint(Sketcher.Constraint("DistanceY", 0, 2, -1, 1, 662.75))
sketch5.setExpression("Constraints[6]", "Params.sketch5_width")
sketch5.setExpression("Constraints[7]", "Params.sketch5_height")
pad4 = body.newObject("PartDesign::Pad", "Pad003")
pad4.Profile = sketch5
pad4.setExpression("Length", "Params.pad4_length")

# Sketch on YZ plane
sketch6 = body.newObject("Sketcher::SketchObject", "Sketch005")
sketch6.AttachmentSupport = (doc.getObject("YZ_Plane"), [""])
sketch6.MapMode = "FlatFace"
sketch6.addGeometry(Part.LineSegment(Vector(0, -662.75, 0), Vector(3.2, -658.85582, 0)), False)
sketch6.addGeometry(Part.LineSegment(Vector(3.2, -658.85582, 0), Vector(3.2, -432.75, 0)), False)
sketch6.addGeometry(Part.LineSegment(Vector(3.2, -432.75, 0), Vector(0, -432.75, 0)), False)
sketch6.addGeometry(Part.LineSegment(Vector(0, -432.75, 0), Vector(0, -662.75, 0)), False)
sketch6.addConstraint(Sketcher.Constraint("Coincident", 0, 2, 1, 1))
sketch6.addConstraint(Sketcher.Constraint("Coincident", 1, 2, 2, 1))
sketch6.addConstraint(Sketcher.Constraint("Coincident", 2, 2, 3, 1))
sketch6.addConstraint(Sketcher.Constraint("Coincident", 3, 2, 0, 1))
sketch6.addConstraint(Sketcher.Constraint("Vertical", 1))
sketch6.addConstraint(Sketcher.Constraint("Horizontal", 2))
sketch6.addConstraint(Sketcher.Constraint("Vertical", 3))
sketch6.addConstraint(Sketcher.Constraint("PointOnObject", 2, 2, -2))
sketch6.addConstraint(Sketcher.Constraint("DistanceY", 3, 2, 3, 1, 230.0))
sketch6.addConstraint(Sketcher.Constraint("DistanceX", 2, 2, 2, 1, 3.2))
sketch6.addConstraint(Sketcher.Constraint("DistanceY", 1, 2, -1, 1, 432.75))
sketch6.addConstraint(Sketcher.Constraint("Distance", 0, 5.040301))
sketch6.setExpression("Constraints[8]", "Params.sketch6_height")
sketch6.setExpression("Constraints[9]", "Params.sketch6_width")
pad5 = body.newObject("PartDesign::Pad", "Pad004")
pad5.Profile = sketch6
pad5.Type = "UpToFirst"

# Sketch on YZ plane
sketch7 = body.newObject("Sketcher::SketchObject", "Sketch006")
sketch7.AttachmentSupport = (doc.getObject("YZ_Plane"), [""])
sketch7.MapMode = "FlatFace"
sketch7.AttachmentOffset = App.Placement(Vector(0, 0, 385.5), App.Rotation())
sketch7.addGeometry(Part.LineSegment(Vector(168.019572, -610.16, 0), Vector(0, -610.16, 0)), False)
sketch7.addGeometry(Part.LineSegment(Vector(0, -610.16, 0), Vector(0, -662.75, 0)), False)
sketch7.addGeometry(Part.LineSegment(Vector(0, -662.75, 0), Vector(168.019572, -662.75, 0)), False)
sketch7.addGeometry(Part.LineSegment(Vector(168.019572, -662.75, 0), Vector(168.019572, -610.16, 0)), False)
sketch7.addConstraint(Sketcher.Constraint("Coincident", 0, 2, 1, 1))
sketch7.addConstraint(Sketcher.Constraint("Coincident", 1, 2, 2, 1))
sketch7.addConstraint(Sketcher.Constraint("Coincident", 2, 2, 3, 1))
sketch7.addConstraint(Sketcher.Constraint("Coincident", 3, 2, 0, 1))
sketch7.addConstraint(Sketcher.Constraint("Horizontal", 0))
sketch7.addConstraint(Sketcher.Constraint("Vertical", 1))
sketch7.addConstraint(Sketcher.Constraint("Horizontal", 2))
sketch7.addConstraint(Sketcher.Constraint("Vertical", 3))
sketch7.addConstraint(Sketcher.Constraint("PointOnObject", 0, 2, -2))
sketch7.addConstraint(Sketcher.Constraint("DistanceY", 1, 2, 1, 1, 52.59))
sketch7.addConstraint(Sketcher.Constraint("DistanceY", 0, 2, -1, 1, 610.16))
sketch7.addConstraint(Sketcher.Constraint("DistanceX", 0, 2, 0, 1, 168.019572))
sketch7.setExpression("Constraints[9]", "Params.sketch7_height")
pocket2 = body.newObject("PartDesign::Pocket", "Pocket001")
pocket2.Profile = sketch7
pocket2.setExpression("Length", "Params.pocket2_length")

# Sketch on YZ plane
sketch8 = body.newObject("Sketcher::SketchObject", "Sketch007")
sketch8.AttachmentSupport = (doc.getObject("YZ_Plane"), [""])
sketch8.MapMode = "FlatFace"
sketch8.AttachmentOffset = App.Placement(Vector(0, 0, 385.5), App.Rotation())
sketch8.addGeometry(Part.LineSegment(Vector(62.630008, -610.16, 0), Vector(189, -456.376412, 0)), False)
sketch8.addGeometry(Part.LineSegment(Vector(189, -456.376412, 0), Vector(189, -432.75, 0)), False)
sketch8.addGeometry(Part.LineSegment(Vector(189, -432.75, 0), Vector(43.215261, -610.16, 0)), False)
sketch8.addGeometry(Part.LineSegment(Vector(43.215261, -610.16, 0), Vector(62.630008, -610.16, 0)), False)
sketch8.addConstraint(Sketcher.Constraint("Coincident", 0, 2, 1, 1))
sketch8.addConstraint(Sketcher.Constraint("Coincident", 1, 2, 2, 1))
sketch8.addConstraint(Sketcher.Constraint("Coincident", 2, 2, 3, 1))
sketch8.addConstraint(Sketcher.Constraint("Coincident", 3, 2, 0, 1))
sketch8.addConstraint(Sketcher.Constraint("Vertical", 1))
sketch8.addConstraint(Sketcher.Constraint("Horizontal", 3))
sketch8.addConstraint(Sketcher.Constraint("Parallel", 0, 2))
sketch8.addConstraint(Sketcher.Constraint("DistanceX", -1, 1, 0, 2, 189.0))
sketch8.addConstraint(Sketcher.Constraint("DistanceY", 1, 2, -1, 1, 432.75))
sketch8.addConstraint(Sketcher.Constraint("DistanceY", 2, 2, -1, 1, 610.16))
sketch8.addConstraint(Sketcher.Constraint("Distance", 2, 229.62469))
sketch8.addConstraint(Sketcher.Constraint("DistanceX", 3, 1, 3, 2, 19.414747))
pad6 = body.newObject("PartDesign::Pad", "Pad005")
pad6.Profile = sketch8
pad6.setExpression("Length", "Params.pad6_length")
pad6.Reversed = True

# Sketch on YZ plane
sketch9 = body.newObject("Sketcher::SketchObject", "Sketch008")
sketch9.AttachmentSupport = (doc.getObject("YZ_Plane"), [""])
sketch9.MapMode = "FlatFace"
sketch9.AttachmentOffset = App.Placement(Vector(0, 0, -3.2), App.Rotation())
sketch9.addGeometry(Part.LineSegment(Vector(62.630008, -610.16, 0), Vector(43.215261, -610.16, 0)), False)
sketch9.addGeometry(Part.LineSegment(Vector(43.215261, -610.16, 0), Vector(189, -432.75, 0)), False)
sketch9.addGeometry(Part.LineSegment(Vector(189, -432.75, 0), Vector(189, -456.376412, 0)), False)
sketch9.addGeometry(Part.LineSegment(Vector(189, -456.376412, 0), Vector(62.630008, -610.16, 0)), False)
sketch9.addConstraint(Sketcher.Constraint("Coincident", 0, 2, 1, 1))
sketch9.addConstraint(Sketcher.Constraint("Coincident", 1, 2, 2, 1))
sketch9.addConstraint(Sketcher.Constraint("Coincident", 2, 2, 3, 1))
sketch9.addConstraint(Sketcher.Constraint("Coincident", 3, 2, 0, 1))
sketch9.addConstraint(Sketcher.Constraint("Horizontal", 0))
sketch9.addConstraint(Sketcher.Constraint("Vertical", 2))
sketch9.addConstraint(Sketcher.Constraint("Parallel", 1, 3))
sketch9.addConstraint(Sketcher.Constraint("DistanceX", -1, 1, 1, 2, 189.0))
sketch9.addConstraint(Sketcher.Constraint("DistanceY", 0, 2, -1, 1, 610.16))
sketch9.addConstraint(Sketcher.Constraint("DistanceY", 1, 2, -1, 1, 432.75))
sketch9.addConstraint(Sketcher.Constraint("Distance", 1, 229.62469))
sketch9.addConstraint(Sketcher.Constraint("DistanceX", 0, 2, 0, 1, 19.414747))
pad7 = body.newObject("PartDesign::Pad", "Pad006")
pad7.Profile = sketch9
pad7.setExpression("Length", "Params.pad7_length")

# Sketch on XY plane
sketch10 = body.newObject("Sketcher::SketchObject", "Sketch009")
sketch10.AttachmentSupport = (doc.getObject("XY_Plane"), [""])
sketch10.MapMode = "FlatFace"
sketch10.AttachmentOffset = App.Placement(Vector(0, 0, -610.16), App.Rotation())
sketch10.addGeometry(Part.LineSegment(Vector(385.5, 3.2, 0), Vector(385.5, 0, 0)), False)
sketch10.addGeometry(Part.LineSegment(Vector(385.5, 0, 0), Vector(-3.2, 0, 0)), False)
sketch10.addGeometry(Part.LineSegment(Vector(-3.2, 0, 0), Vector(-3.2, 3.2, 0)), False)
sketch10.addGeometry(Part.LineSegment(Vector(-3.2, 3.2, 0), Vector(385.5, 3.2, 0)), False)
sketch10.addConstraint(Sketcher.Constraint("Coincident", 0, 2, 1, 1))
sketch10.addConstraint(Sketcher.Constraint("Coincident", 1, 2, 2, 1))
sketch10.addConstraint(Sketcher.Constraint("Coincident", 2, 2, 3, 1))
sketch10.addConstraint(Sketcher.Constraint("Coincident", 3, 2, 0, 1))
sketch10.addConstraint(Sketcher.Constraint("Vertical", 0))
sketch10.addConstraint(Sketcher.Constraint("Horizontal", 1))
sketch10.addConstraint(Sketcher.Constraint("Vertical", 2))
sketch10.addConstraint(Sketcher.Constraint("Horizontal", 3))
sketch10.addConstraint(Sketcher.Constraint("PointOnObject", 0, 2, -1))
sketch10.addConstraint(Sketcher.Constraint("DistanceX", 1, 2, 1, 1, 388.7))
sketch10.addConstraint(Sketcher.Constraint("DistanceY", 0, 2, 0, 1, 3.2))
sketch10.addConstraint(Sketcher.Constraint("DistanceX", -1, 1, 0, 2, 385.5))
sketch10.setExpression("Constraints[9]", "Params.sketch10_width")
sketch10.setExpression("Constraints[10]", "Params.sketch10_height")
pad8 = body.newObject("PartDesign::Pad", "Pad007")
pad8.Profile = sketch10
pad8.setExpression("Length", "Params.pad8_length")
pad8.Reversed = True

# Sketch on XY plane
sketch11 = body.newObject("Sketcher::SketchObject", "Sketch010")
sketch11.AttachmentSupport = (doc.getObject("XY_Plane"), [""])
sketch11.MapMode = "FlatFace"
sketch11.AttachmentOffset = App.Placement(Vector(0, 0, 3.2), App.Rotation())
sketch11.addGeometry(Part.LineSegment(Vector(-3.2, 3.2, 0), Vector(-3.2, 0, 0)), False)
sketch11.addGeometry(Part.LineSegment(Vector(-3.2, 0, 0), Vector(385.5, 0, 0)), False)
sketch11.addGeometry(Part.LineSegment(Vector(385.5, 0, 0), Vector(385.5, 3.2, 0)), False)
sketch11.addGeometry(Part.LineSegment(Vector(385.5, 3.2, 0), Vector(-3.2, 3.2, 0)), False)
sketch11.addConstraint(Sketcher.Constraint("Coincident", 0, 2, 1, 1))
sketch11.addConstraint(Sketcher.Constraint("Coincident", 1, 2, 2, 1))
sketch11.addConstraint(Sketcher.Constraint("Coincident", 2, 2, 3, 1))
sketch11.addConstraint(Sketcher.Constraint("Coincident", 3, 2, 0, 1))
sketch11.addConstraint(Sketcher.Constraint("Vertical", 0))
sketch11.addConstraint(Sketcher.Constraint("Horizontal", 1))
sketch11.addConstraint(Sketcher.Constraint("Vertical", 2))
sketch11.addConstraint(Sketcher.Constraint("Horizontal", 3))
sketch11.addConstraint(Sketcher.Constraint("PointOnObject", 0, 2, -1))
sketch11.addConstraint(Sketcher.Constraint("DistanceX", 1, 1, 1, 2, 388.7))
sketch11.addConstraint(Sketcher.Constraint("DistanceY", 0, 2, 0, 1, 3.2))
sketch11.addConstraint(Sketcher.Constraint("DistanceX", 0, 2, -1, 1, 3.2))
sketch11.setExpression("Constraints[9]", "Params.sketch11_width")
sketch11.setExpression("Constraints[10]", "Params.sketch11_height")
pad9 = body.newObject("PartDesign::Pad", "Pad008")
pad9.Profile = sketch11
pad9.setExpression("Length", "Params.pad9_length")

# Sketch on YZ plane
sketch12 = body.newObject("Sketcher::SketchObject", "Sketch011")
sketch12.AttachmentSupport = (doc.getObject("YZ_Plane"), [""])
sketch12.MapMode = "FlatFace"
sketch12.AttachmentOffset = App.Placement(Vector(0, 0, 385.5), App.Rotation())
sketch12.addGeometry(Part.LineSegment(Vector(3.2, 43.2, 0), Vector(0, 43.2, 0)), False)
sketch12.addGeometry(Part.LineSegment(Vector(0, 43.2, 0), Vector(0, -650.16, 0)), False)
sketch12.addGeometry(Part.LineSegment(Vector(0, -650.16, 0), Vector(3.2, -650.16, 0)), False)
sketch12.addGeometry(Part.LineSegment(Vector(3.2, -650.16, 0), Vector(3.2, 43.2, 0)), False)
sketch12.addConstraint(Sketcher.Constraint("Coincident", 0, 2, 1, 1))
sketch12.addConstraint(Sketcher.Constraint("Coincident", 1, 2, 2, 1))
sketch12.addConstraint(Sketcher.Constraint("Coincident", 2, 2, 3, 1))
sketch12.addConstraint(Sketcher.Constraint("Coincident", 3, 2, 0, 1))
sketch12.addConstraint(Sketcher.Constraint("Horizontal", 0))
sketch12.addConstraint(Sketcher.Constraint("Vertical", 1))
sketch12.addConstraint(Sketcher.Constraint("Horizontal", 2))
sketch12.addConstraint(Sketcher.Constraint("Vertical", 3))
sketch12.addConstraint(Sketcher.Constraint("PointOnObject", 0, 2, -2))
sketch12.addConstraint(Sketcher.Constraint("DistanceX", 0, 2, 0, 1, 3.2))
sketch12.addConstraint(Sketcher.Constraint("DistanceY", 1, 2, 1, 1, 693.36))
sketch12.addConstraint(Sketcher.Constraint("DistanceY", -1, 1, 0, 2, 43.2))
sketch12.setExpression("Constraints[9]", "Params.sketch12_width")
sketch12.setExpression("Constraints[10]", "Params.sketch12_height")
pad10 = body.newObject("PartDesign::Pad", "Pad009")
pad10.Profile = sketch12
pad10.setExpression("Length", "Params.pad10_length")

# Sketch on YZ plane
sketch13 = body.newObject("Sketcher::SketchObject", "Sketch012")
sketch13.AttachmentSupport = (doc.getObject("YZ_Plane"), [""])
sketch13.MapMode = "FlatFace"
sketch13.AttachmentOffset = App.Placement(Vector(0, 0, -3.2), App.Rotation())
sketch13.addGeometry(Part.LineSegment(Vector(3.2, -650.16, 0), Vector(0, -650.16, 0)), False)
sketch13.addGeometry(Part.LineSegment(Vector(0, -650.16, 0), Vector(0, 43.2, 0)), False)
sketch13.addGeometry(Part.LineSegment(Vector(0, 43.2, 0), Vector(3.2, 43.2, 0)), False)
sketch13.addGeometry(Part.LineSegment(Vector(3.2, 43.2, 0), Vector(3.2, -650.16, 0)), False)
sketch13.addConstraint(Sketcher.Constraint("Coincident", 0, 2, 1, 1))
sketch13.addConstraint(Sketcher.Constraint("Coincident", 1, 2, 2, 1))
sketch13.addConstraint(Sketcher.Constraint("Coincident", 2, 2, 3, 1))
sketch13.addConstraint(Sketcher.Constraint("Coincident", 3, 2, 0, 1))
sketch13.addConstraint(Sketcher.Constraint("Horizontal", 0))
sketch13.addConstraint(Sketcher.Constraint("Vertical", 1))
sketch13.addConstraint(Sketcher.Constraint("Horizontal", 2))
sketch13.addConstraint(Sketcher.Constraint("Vertical", 3))
sketch13.addConstraint(Sketcher.Constraint("PointOnObject", 0, 2, -2))
sketch13.addConstraint(Sketcher.Constraint("DistanceX", 0, 2, 0, 1, 3.2))
sketch13.addConstraint(Sketcher.Constraint("DistanceY", 1, 1, 1, 2, 693.36))
sketch13.addConstraint(Sketcher.Constraint("DistanceY", -1, 1, 1, 2, 43.2))
sketch13.setExpression("Constraints[9]", "Params.sketch13_width")
sketch13.setExpression("Constraints[10]", "Params.sketch13_height")
pad11 = body.newObject("PartDesign::Pad", "Pad010")
pad11.Profile = sketch13
pad11.setExpression("Length", "Params.pad11_length")
pad11.Reversed = True

doc.recompute()
